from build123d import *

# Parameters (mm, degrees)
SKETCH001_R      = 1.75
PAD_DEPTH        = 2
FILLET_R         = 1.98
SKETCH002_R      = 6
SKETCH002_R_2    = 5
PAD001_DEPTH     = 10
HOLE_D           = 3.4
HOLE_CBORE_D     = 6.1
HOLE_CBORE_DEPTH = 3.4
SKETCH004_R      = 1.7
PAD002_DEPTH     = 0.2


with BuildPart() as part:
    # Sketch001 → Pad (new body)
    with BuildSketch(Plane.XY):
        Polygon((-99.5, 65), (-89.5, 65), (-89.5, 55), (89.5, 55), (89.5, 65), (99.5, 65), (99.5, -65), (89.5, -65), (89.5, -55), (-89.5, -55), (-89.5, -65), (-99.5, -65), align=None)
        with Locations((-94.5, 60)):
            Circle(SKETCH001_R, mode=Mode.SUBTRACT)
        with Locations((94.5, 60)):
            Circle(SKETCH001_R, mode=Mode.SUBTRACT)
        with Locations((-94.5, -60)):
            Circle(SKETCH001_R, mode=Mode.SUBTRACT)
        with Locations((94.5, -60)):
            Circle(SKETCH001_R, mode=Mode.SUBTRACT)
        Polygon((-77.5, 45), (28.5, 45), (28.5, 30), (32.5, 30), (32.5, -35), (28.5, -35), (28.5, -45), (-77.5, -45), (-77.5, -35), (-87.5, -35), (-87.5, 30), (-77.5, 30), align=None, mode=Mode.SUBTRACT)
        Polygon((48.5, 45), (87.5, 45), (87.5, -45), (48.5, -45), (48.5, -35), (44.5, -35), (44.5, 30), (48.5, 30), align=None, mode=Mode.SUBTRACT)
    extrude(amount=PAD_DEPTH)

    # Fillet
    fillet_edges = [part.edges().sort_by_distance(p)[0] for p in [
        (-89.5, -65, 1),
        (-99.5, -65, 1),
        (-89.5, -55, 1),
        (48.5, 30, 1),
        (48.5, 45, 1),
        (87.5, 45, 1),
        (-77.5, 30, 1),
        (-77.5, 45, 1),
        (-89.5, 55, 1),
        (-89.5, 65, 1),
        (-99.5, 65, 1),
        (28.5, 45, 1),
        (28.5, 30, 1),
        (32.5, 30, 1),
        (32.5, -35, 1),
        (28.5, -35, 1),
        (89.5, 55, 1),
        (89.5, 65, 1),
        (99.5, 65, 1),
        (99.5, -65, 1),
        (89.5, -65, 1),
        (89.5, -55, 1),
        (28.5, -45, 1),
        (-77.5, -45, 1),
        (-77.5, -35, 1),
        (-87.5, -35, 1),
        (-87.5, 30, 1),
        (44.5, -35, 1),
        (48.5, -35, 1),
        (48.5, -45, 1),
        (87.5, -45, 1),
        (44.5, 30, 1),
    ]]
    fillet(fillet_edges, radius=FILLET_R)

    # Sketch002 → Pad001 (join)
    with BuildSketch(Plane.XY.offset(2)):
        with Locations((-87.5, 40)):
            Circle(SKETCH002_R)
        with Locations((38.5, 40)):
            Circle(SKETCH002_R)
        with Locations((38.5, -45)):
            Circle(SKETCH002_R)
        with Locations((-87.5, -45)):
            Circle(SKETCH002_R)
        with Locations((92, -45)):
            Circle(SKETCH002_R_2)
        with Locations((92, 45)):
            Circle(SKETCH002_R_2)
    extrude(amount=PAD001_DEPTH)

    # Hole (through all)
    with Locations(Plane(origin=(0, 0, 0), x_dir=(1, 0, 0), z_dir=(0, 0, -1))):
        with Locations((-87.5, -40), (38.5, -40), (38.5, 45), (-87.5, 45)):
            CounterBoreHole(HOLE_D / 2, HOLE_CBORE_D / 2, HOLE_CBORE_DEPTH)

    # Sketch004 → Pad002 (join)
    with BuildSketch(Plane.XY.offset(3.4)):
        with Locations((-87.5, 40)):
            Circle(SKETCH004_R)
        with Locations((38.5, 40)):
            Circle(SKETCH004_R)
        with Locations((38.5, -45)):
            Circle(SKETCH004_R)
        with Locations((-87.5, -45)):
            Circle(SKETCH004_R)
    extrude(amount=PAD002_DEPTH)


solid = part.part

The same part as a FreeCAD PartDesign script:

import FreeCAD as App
import Part
import Sketcher


def edges_at(feature, points):
    """Names of the edges that pass closest to the given points."""
    edges = feature.Shape.Edges
    near = lambda p: min(range(len(edges)), key=lambda i: edges[i].distToShape(Part.Vertex(*p))[0])
    return sorted({f"Edge{near(p) + 1}" for p in points})


def add_polygon(sketch, points):
    """Adds a closed chain of lines whose ends are joined by coincident constraints."""
    first, n = sketch.GeometryCount, len(points)
    for a, b in zip(points, points[1:] + points[:1]):
        sketch.addGeometry(Part.LineSegment(App.Vector(*a, 0), App.Vector(*b, 0)), False)
    for i in range(n):
        sketch.addConstraint(Sketcher.Constraint("Coincident", first + i, 2, first + (i + 1) % n, 1))

doc = App.newDocument("Part")
params = doc.addObject("Spreadsheet::Sheet", "Params")
for row, (alias, value) in enumerate([
    ("sketch1_diameter", "3.5 mm"),
    ("sketch1_width", "10 mm"),
    ("sketch1_width2", "179 mm"),
    ("sketch1_width3", "39 mm"),
    ("sketch1_width4", "4 mm"),
    ("pad1_length", "2 mm"),
    ("fillet_radius", "1.98 mm"),
    ("sketch2_diameter", "12 mm"),
    ("sketch2_diameter2", "10 mm"),
    ("pad2_length", "10 mm"),
    ("sketch3_diameter", "3.4 mm"),
    ("hole_diameter", "3.4 mm"),
    ("hole_cbore_diameter", "6.1 mm"),
    ("hole_cbore_depth", "3.4 mm"),
    ("sketch4_diameter", "3.4 mm"),
    ("pad3_length", "0.2 mm"),
], start=1):
    params.set(f"A{row}", alias)
    params.set(f"B{row}", "=" + value)
    params.setAlias(f"B{row}", alias)

body = doc.addObject("PartDesign::Body", "Body")

sketch1 = body.newObject("Sketcher::SketchObject", "Sketch")
sketch1.AttachmentSupport = (doc.getObject("XY_Plane"), [""])
sketch1.MapMode = "FlatFace"
add_polygon(sketch1, [(-89.5, 65), (-99.5, 65), (-99.5, -65), (-89.5, -65), (-89.5, -55), (89.5, -55), (89.5, -65), (99.5, -65), (99.5, 65), (89.5, 65), (89.5, 55), (-89.5, 55)])
sketch1.addGeometry(Part.Circle(App.Vector(94.5, -60, 0), App.Vector(0, 0, 1), 1.8), False)
sketch1.addGeometry(Part.Circle(App.Vector(-94.5, -60, 0), App.Vector(0, 0, 1), 1.8), False)
add_polygon(sketch1, [(48.5, 45), (87.5, 45), (87.5, -45), (48.5, -45), (48.5, -35), (44.5, -35), (44.5, 30), (48.5, 30)])
sketch1.addGeometry(Part.Circle(App.Vector(94.5, 60, 0), App.Vector(0, 0, 1), 1.8), False)
add_polygon(sketch1, [(-77.5, 45), (28.5, 45), (28.5, 30), (32.5, 30), (32.5, -35), (28.5, -35), (28.5, -45), (-77.5, -45), (-77.5, -35), (-87.5, -35), (-87.5, 30), (-77.5, 30)])
sketch1.addGeometry(Part.Circle(App.Vector(-94.5, 60, 0), App.Vector(0, 0, 1), 1.8), False)
sketch1.addConstraint([
    Sketcher.Constraint("Horizontal", 0),
    Sketcher.Constraint("Vertical", 1),
    Sketcher.Constraint("Horizontal", 2),
    Sketcher.Constraint("Vertical", 3),
    Sketcher.Constraint("Horizontal", 4),
    Sketcher.Constraint("Vertical", 5),
    Sketcher.Constraint("Horizontal", 6),
    Sketcher.Constraint("Vertical", 7),
    Sketcher.Constraint("Horizontal", 8),
    Sketcher.Constraint("Vertical", 9),
    Sketcher.Constraint("Horizontal", 10),
    Sketcher.Constraint("Vertical", 11),
    Sketcher.Constraint("Horizontal", 14),
    Sketcher.Constraint("Vertical", 15),
    Sketcher.Constraint("Horizontal", 16),
    Sketcher.Constraint("Vertical", 17),
    Sketcher.Constraint("Horizontal", 18),
    Sketcher.Constraint("Vertical", 19),
    Sketcher.Constraint("Horizontal", 20),
    Sketcher.Constraint("Vertical", 21),
    Sketcher.Constraint("Horizontal", 23),
    Sketcher.Constraint("Vertical", 24),
    Sketcher.Constraint("Horizontal", 25),
    Sketcher.Constraint("Vertical", 26),
    Sketcher.Constraint("Horizontal", 27),
    Sketcher.Constraint("Vertical", 28),
    Sketcher.Constraint("Horizontal", 29),
    Sketcher.Constraint("Vertical", 30),
    Sketcher.Constraint("Horizontal", 31),
    Sketcher.Constraint("Vertical", 32),
    Sketcher.Constraint("Horizontal", 33),
    Sketcher.Constraint("Vertical", 34),
    Sketcher.Constraint("Equal", 12, 13),
    Sketcher.Constraint("Equal", 13, 22),
    Sketcher.Constraint("Equal", 22, 35),
    Sketcher.Constraint("Symmetric", 13, 3, 22, 3, -1, 1),
    Sketcher.Constraint("Symmetric", 12, 3, 35, 3, -1, 1),
    Sketcher.Constraint("Symmetric", 0, 2, 6, 2, -1, 1),
    Sketcher.Constraint("Symmetric", 2, 2, 8, 2, -1, 1),
    Sketcher.Constraint("Symmetric", 4, 2, 10, 2, -1, 1),
    Sketcher.Constraint("Symmetric", 12, 3, 13, 3, -2),
    Sketcher.Constraint("Symmetric", 2, 2, 5, 2, -2),
    Sketcher.Constraint("Symmetric", 16, 2, 21, 2, -1),
    Sketcher.Constraint("Symmetric", 23, 2, 28, 2, -1),
    Sketcher.Constraint("Horizontal", 21, 2, 23, 2),
    Sketcher.Constraint("Horizontal", 20, 2, 24, 2),
    Sketcher.Constraint("Horizontal", 18, 2, 26, 2),
    Sketcher.Constraint("Horizontal", 27, 2, 30, 2),
    Sketcher.Constraint("Horizontal", 25, 2, 32, 2),
    Sketcher.Constraint("Vertical", 30, 2, 33, 2),
    Sketcher.Constraint("Equal", 20, 25),
    Sketcher.Constraint("Equal", 8, 31),
    Sketcher.Constraint("Equal", 33, 3),
    Sketcher.Constraint("Equal", 11, 17),
    Sketcher.Constraint("Diameter", 12, 3.5),
    Sketcher.Constraint("DistanceX", 0, 2, 0, 1, 10.0),
    Sketcher.Constraint("DistanceX", 4, 1, 4, 2, 179.0),
    Sketcher.Constraint("DistanceX", 14, 1, 14, 2, 39.0),
    Sketcher.Constraint("DistanceX", 18, 2, 18, 1, 4.0),
    Sketcher.Constraint("DistanceX", 23, 1, 23, 2, 106.0),
    Sketcher.Constraint("DistanceY", 1, 2, 1, 1, 130.0),
    Sketcher.Constraint("DistanceY", 15, 2, 15, 1, 90.0),
    Sketcher.Constraint("DistanceY", 19, 1, 19, 2, 65.0),
    Sketcher.Constraint("DistanceY", 12, 3, -1, 1, 60.0),
    Sketcher.Constraint("DistanceX", 13, 3, 12, 3, 189.0),
    Sketcher.Constraint("DistanceX", 14, 2, 9, 2, 2.0),
    Sketcher.Constraint("DistanceX", 23, 2, 21, 2, 20.0),
])
sketch1.setExpression("Constraints[86]", "Params.sketch1_diameter")
sketch1.setExpression("Constraints[87]", "Params.sketch1_width")
sketch1.setExpression("Constraints[88]", "Params.sketch1_width2")
sketch1.setExpression("Constraints[89]", "Params.sketch1_width3")
sketch1.setExpression("Constraints[90]", "Params.sketch1_width4")
pad1 = body.newObject("PartDesign::Pad", "Pad")
pad1.Profile = sketch1
pad1.setExpression("Length", "Params.pad1_length")
doc.recompute()

fillet = body.newObject("PartDesign::Fillet", "Fillet")
fillet.Base = (pad1, edges_at(pad1, [
    (-89.5, -65, 1),
    (-99.5, -65, 1),
    (-89.5, -55, 1),
    (48.5, 30, 1),
    (48.5, 45, 1),
    (87.5, 45, 1),
    (-77.5, 30, 1),
    (-77.5, 45, 1),
    (-89.5, 55, 1),
    (-89.5, 65, 1),
    (-99.5, 65, 1),
    (28.5, 45, 1),
    (28.5, 30, 1),
    (32.5, 30, 1),
    (32.5, -35, 1),
    (28.5, -35, 1),
    (89.5, 55, 1),
    (89.5, 65, 1),
    (99.5, 65, 1),
    (99.5, -65, 1),
    (89.5, -65, 1),
    (89.5, -55, 1),
    (28.5, -45, 1),
    (-77.5, -45, 1),
    (-77.5, -35, 1),
    (-87.5, -35, 1),
    (-87.5, 30, 1),
    (44.5, -35, 1),
    (48.5, -35, 1),
    (48.5, -45, 1),
    (87.5, -45, 1),
    (44.5, 30, 1),
]))
fillet.setExpression("Radius", "Params.fillet_radius")

sketch2 = body.newObject("Sketcher::SketchObject", "Sketch001")
sketch2.AttachmentSupport = (doc.getObject("XY_Plane"), [""])
sketch2.MapMode = "FlatFace"
sketch2.AttachmentOffset = App.Placement(App.Vector(0, 0, 2), App.Rotation())
sketch2.addGeometry([
    Part.Circle(App.Vector(-88, 40, 0), App.Vector(0, 0, 1), 6),
    Part.Circle(App.Vector(38, 40, 0), App.Vector(0, 0, 1), 6),
    Part.Circle(App.Vector(38, -45, 0), App.Vector(0, 0, 1), 6),
    Part.Circle(App.Vector(-88, -45, 0), App.Vector(0, 0, 1), 6),
    Part.Circle(App.Vector(92, -45, 0), App.Vector(0, 0, 1), 5),
    Part.Circle(App.Vector(92, 45, 0), App.Vector(0, 0, 1), 5),
], False)
sketch2.addConstraint([
    Sketcher.Constraint("Equal", 0, 1),
    Sketcher.Constraint("Equal", 1, 2),
    Sketcher.Constraint("Equal", 2, 3),
    Sketcher.Constraint("Equal", 4, 5),
    Sketcher.Constraint("Symmetric", 4, 3, 5, 3, -1),
    Sketcher.Constraint("Horizontal", 0, 3, 1, 3),
    Sketcher.Constraint("Horizontal", 2, 3, 3, 3),
    Sketcher.Constraint("Horizontal", 3, 3, 4, 3),
    Sketcher.Constraint("Vertical", 1, 3, 2, 3),
    Sketcher.Constraint("Vertical", 0, 3, 3, 3),
    Sketcher.Constraint("Diameter", 0, 12.0),
    Sketcher.Constraint("Diameter", 4, 10.0),
    Sketcher.Constraint("DistanceY", -1, 1, 0, 3, 40.0),
    Sketcher.Constraint("DistanceY", 2, 3, -1, 1, 45.0),
    Sketcher.Constraint("DistanceX", -1, 1, 4, 3, 92.0),
    Sketcher.Constraint("DistanceX", 0, 3, 1, 3, 126.0),
    Sketcher.Constraint("DistanceX", 0, 3, -1, 1, 87.5),
])
sketch2.setExpression("Constraints[10]", "Params.sketch2_diameter")
sketch2.setExpression("Constraints[11]", "Params.sketch2_diameter2")
pad2 = body.newObject("PartDesign::Pad", "Pad001")
pad2.Profile = sketch2
pad2.setExpression("Length", "Params.pad2_length")

sketch3 = body.newObject("Sketcher::SketchObject", "Sketch002")
sketch3.AttachmentSupport = (doc.getObject("XY_Plane"), [""])
sketch3.MapMode = "FlatFace"
sketch3.addGeometry([
    Part.Circle(App.Vector(-87.5, 40, 0), App.Vector(0, 0, 1), 1.7),
    Part.Circle(App.Vector(38.5, 40, 0), App.Vector(0, 0, 1), 1.7),
    Part.Circle(App.Vector(38.5, -45, 0), App.Vector(0, 0, 1), 1.7),
    Part.Circle(App.Vector(-87.5, -45, 0), App.Vector(0, 0, 1), 1.7),
], False)
sketch3.addConstraint([
    Sketcher.Constraint("Equal", 0, 1),
    Sketcher.Constraint("Equal", 1, 2),
    Sketcher.Constraint("Equal", 2, 3),
    Sketcher.Constraint("Horizontal", 0, 3, 1, 3),
    Sketcher.Constraint("Horizontal", 2, 3, 3, 3),
    Sketcher.Constraint("Vertical", 1, 3, 2, 3),
    Sketcher.Constraint("Vertical", 0, 3, 3, 3),
    Sketcher.Constraint("Diameter", 0, 3.4),
    Sketcher.Constraint("DistanceY", -1, 1, 0, 3, 40.0),
    Sketcher.Constraint("DistanceY", 2, 3, -1, 1, 45.0),
    Sketcher.Constraint("DistanceX", 0, 3, 1, 3, 126.0),
    Sketcher.Constraint("DistanceX", 0, 3, -1, 1, 87.5),
])
sketch3.setExpression("Constraints[7]", "Params.sketch3_diameter")
doc.recompute()
hole = body.newObject("PartDesign::Hole", "Hole")
hole.Profile = sketch3
hole.ThreadType = "None"
hole.setExpression("Diameter", "Params.hole_diameter")
hole.DepthType = "ThroughAll"
hole.HoleCutType = "Counterbore"
hole.setExpression("HoleCutDiameter", "Params.hole_cbore_diameter")
hole.setExpression("HoleCutDepth", "Params.hole_cbore_depth")
hole.Reversed = True

sketch4 = body.newObject("Sketcher::SketchObject", "Sketch003")
sketch4.AttachmentSupport = (doc.getObject("XY_Plane"), [""])
sketch4.MapMode = "FlatFace"
sketch4.AttachmentOffset = App.Placement(App.Vector(0, 0, 3.4), App.Rotation())
sketch4.addGeometry([
    Part.Circle(App.Vector(-87.5, 40, 0), App.Vector(0, 0, 1), 1.7),
    Part.Circle(App.Vector(38.5, 40, 0), App.Vector(0, 0, 1), 1.7),
    Part.Circle(App.Vector(38.5, -45, 0), App.Vector(0, 0, 1), 1.7),
    Part.Circle(App.Vector(-87.5, -45, 0), App.Vector(0, 0, 1), 1.7),
], False)
sketch4.addConstraint([
    Sketcher.Constraint("Equal", 0, 1),
    Sketcher.Constraint("Equal", 1, 2),
    Sketcher.Constraint("Equal", 2, 3),
    Sketcher.Constraint("Horizontal", 0, 3, 1, 3),
    Sketcher.Constraint("Horizontal", 2, 3, 3, 3),
    Sketcher.Constraint("Vertical", 1, 3, 2, 3),
    Sketcher.Constraint("Vertical", 0, 3, 3, 3),
    Sketcher.Constraint("Diameter", 0, 3.4),
    Sketcher.Constraint("DistanceY", -1, 1, 0, 3, 40.0),
    Sketcher.Constraint("DistanceY", 2, 3, -1, 1, 45.0),
    Sketcher.Constraint("DistanceX", 0, 3, 1, 3, 126.0),
    Sketcher.Constraint("DistanceX", 0, 3, -1, 1, 87.5),
])
sketch4.setExpression("Constraints[7]", "Params.sketch4_diameter")
pad3 = body.newObject("PartDesign::Pad", "Pad002")
pad3.Profile = sketch4
pad3.setExpression("Length", "Params.pad3_length")

doc.recompute()
